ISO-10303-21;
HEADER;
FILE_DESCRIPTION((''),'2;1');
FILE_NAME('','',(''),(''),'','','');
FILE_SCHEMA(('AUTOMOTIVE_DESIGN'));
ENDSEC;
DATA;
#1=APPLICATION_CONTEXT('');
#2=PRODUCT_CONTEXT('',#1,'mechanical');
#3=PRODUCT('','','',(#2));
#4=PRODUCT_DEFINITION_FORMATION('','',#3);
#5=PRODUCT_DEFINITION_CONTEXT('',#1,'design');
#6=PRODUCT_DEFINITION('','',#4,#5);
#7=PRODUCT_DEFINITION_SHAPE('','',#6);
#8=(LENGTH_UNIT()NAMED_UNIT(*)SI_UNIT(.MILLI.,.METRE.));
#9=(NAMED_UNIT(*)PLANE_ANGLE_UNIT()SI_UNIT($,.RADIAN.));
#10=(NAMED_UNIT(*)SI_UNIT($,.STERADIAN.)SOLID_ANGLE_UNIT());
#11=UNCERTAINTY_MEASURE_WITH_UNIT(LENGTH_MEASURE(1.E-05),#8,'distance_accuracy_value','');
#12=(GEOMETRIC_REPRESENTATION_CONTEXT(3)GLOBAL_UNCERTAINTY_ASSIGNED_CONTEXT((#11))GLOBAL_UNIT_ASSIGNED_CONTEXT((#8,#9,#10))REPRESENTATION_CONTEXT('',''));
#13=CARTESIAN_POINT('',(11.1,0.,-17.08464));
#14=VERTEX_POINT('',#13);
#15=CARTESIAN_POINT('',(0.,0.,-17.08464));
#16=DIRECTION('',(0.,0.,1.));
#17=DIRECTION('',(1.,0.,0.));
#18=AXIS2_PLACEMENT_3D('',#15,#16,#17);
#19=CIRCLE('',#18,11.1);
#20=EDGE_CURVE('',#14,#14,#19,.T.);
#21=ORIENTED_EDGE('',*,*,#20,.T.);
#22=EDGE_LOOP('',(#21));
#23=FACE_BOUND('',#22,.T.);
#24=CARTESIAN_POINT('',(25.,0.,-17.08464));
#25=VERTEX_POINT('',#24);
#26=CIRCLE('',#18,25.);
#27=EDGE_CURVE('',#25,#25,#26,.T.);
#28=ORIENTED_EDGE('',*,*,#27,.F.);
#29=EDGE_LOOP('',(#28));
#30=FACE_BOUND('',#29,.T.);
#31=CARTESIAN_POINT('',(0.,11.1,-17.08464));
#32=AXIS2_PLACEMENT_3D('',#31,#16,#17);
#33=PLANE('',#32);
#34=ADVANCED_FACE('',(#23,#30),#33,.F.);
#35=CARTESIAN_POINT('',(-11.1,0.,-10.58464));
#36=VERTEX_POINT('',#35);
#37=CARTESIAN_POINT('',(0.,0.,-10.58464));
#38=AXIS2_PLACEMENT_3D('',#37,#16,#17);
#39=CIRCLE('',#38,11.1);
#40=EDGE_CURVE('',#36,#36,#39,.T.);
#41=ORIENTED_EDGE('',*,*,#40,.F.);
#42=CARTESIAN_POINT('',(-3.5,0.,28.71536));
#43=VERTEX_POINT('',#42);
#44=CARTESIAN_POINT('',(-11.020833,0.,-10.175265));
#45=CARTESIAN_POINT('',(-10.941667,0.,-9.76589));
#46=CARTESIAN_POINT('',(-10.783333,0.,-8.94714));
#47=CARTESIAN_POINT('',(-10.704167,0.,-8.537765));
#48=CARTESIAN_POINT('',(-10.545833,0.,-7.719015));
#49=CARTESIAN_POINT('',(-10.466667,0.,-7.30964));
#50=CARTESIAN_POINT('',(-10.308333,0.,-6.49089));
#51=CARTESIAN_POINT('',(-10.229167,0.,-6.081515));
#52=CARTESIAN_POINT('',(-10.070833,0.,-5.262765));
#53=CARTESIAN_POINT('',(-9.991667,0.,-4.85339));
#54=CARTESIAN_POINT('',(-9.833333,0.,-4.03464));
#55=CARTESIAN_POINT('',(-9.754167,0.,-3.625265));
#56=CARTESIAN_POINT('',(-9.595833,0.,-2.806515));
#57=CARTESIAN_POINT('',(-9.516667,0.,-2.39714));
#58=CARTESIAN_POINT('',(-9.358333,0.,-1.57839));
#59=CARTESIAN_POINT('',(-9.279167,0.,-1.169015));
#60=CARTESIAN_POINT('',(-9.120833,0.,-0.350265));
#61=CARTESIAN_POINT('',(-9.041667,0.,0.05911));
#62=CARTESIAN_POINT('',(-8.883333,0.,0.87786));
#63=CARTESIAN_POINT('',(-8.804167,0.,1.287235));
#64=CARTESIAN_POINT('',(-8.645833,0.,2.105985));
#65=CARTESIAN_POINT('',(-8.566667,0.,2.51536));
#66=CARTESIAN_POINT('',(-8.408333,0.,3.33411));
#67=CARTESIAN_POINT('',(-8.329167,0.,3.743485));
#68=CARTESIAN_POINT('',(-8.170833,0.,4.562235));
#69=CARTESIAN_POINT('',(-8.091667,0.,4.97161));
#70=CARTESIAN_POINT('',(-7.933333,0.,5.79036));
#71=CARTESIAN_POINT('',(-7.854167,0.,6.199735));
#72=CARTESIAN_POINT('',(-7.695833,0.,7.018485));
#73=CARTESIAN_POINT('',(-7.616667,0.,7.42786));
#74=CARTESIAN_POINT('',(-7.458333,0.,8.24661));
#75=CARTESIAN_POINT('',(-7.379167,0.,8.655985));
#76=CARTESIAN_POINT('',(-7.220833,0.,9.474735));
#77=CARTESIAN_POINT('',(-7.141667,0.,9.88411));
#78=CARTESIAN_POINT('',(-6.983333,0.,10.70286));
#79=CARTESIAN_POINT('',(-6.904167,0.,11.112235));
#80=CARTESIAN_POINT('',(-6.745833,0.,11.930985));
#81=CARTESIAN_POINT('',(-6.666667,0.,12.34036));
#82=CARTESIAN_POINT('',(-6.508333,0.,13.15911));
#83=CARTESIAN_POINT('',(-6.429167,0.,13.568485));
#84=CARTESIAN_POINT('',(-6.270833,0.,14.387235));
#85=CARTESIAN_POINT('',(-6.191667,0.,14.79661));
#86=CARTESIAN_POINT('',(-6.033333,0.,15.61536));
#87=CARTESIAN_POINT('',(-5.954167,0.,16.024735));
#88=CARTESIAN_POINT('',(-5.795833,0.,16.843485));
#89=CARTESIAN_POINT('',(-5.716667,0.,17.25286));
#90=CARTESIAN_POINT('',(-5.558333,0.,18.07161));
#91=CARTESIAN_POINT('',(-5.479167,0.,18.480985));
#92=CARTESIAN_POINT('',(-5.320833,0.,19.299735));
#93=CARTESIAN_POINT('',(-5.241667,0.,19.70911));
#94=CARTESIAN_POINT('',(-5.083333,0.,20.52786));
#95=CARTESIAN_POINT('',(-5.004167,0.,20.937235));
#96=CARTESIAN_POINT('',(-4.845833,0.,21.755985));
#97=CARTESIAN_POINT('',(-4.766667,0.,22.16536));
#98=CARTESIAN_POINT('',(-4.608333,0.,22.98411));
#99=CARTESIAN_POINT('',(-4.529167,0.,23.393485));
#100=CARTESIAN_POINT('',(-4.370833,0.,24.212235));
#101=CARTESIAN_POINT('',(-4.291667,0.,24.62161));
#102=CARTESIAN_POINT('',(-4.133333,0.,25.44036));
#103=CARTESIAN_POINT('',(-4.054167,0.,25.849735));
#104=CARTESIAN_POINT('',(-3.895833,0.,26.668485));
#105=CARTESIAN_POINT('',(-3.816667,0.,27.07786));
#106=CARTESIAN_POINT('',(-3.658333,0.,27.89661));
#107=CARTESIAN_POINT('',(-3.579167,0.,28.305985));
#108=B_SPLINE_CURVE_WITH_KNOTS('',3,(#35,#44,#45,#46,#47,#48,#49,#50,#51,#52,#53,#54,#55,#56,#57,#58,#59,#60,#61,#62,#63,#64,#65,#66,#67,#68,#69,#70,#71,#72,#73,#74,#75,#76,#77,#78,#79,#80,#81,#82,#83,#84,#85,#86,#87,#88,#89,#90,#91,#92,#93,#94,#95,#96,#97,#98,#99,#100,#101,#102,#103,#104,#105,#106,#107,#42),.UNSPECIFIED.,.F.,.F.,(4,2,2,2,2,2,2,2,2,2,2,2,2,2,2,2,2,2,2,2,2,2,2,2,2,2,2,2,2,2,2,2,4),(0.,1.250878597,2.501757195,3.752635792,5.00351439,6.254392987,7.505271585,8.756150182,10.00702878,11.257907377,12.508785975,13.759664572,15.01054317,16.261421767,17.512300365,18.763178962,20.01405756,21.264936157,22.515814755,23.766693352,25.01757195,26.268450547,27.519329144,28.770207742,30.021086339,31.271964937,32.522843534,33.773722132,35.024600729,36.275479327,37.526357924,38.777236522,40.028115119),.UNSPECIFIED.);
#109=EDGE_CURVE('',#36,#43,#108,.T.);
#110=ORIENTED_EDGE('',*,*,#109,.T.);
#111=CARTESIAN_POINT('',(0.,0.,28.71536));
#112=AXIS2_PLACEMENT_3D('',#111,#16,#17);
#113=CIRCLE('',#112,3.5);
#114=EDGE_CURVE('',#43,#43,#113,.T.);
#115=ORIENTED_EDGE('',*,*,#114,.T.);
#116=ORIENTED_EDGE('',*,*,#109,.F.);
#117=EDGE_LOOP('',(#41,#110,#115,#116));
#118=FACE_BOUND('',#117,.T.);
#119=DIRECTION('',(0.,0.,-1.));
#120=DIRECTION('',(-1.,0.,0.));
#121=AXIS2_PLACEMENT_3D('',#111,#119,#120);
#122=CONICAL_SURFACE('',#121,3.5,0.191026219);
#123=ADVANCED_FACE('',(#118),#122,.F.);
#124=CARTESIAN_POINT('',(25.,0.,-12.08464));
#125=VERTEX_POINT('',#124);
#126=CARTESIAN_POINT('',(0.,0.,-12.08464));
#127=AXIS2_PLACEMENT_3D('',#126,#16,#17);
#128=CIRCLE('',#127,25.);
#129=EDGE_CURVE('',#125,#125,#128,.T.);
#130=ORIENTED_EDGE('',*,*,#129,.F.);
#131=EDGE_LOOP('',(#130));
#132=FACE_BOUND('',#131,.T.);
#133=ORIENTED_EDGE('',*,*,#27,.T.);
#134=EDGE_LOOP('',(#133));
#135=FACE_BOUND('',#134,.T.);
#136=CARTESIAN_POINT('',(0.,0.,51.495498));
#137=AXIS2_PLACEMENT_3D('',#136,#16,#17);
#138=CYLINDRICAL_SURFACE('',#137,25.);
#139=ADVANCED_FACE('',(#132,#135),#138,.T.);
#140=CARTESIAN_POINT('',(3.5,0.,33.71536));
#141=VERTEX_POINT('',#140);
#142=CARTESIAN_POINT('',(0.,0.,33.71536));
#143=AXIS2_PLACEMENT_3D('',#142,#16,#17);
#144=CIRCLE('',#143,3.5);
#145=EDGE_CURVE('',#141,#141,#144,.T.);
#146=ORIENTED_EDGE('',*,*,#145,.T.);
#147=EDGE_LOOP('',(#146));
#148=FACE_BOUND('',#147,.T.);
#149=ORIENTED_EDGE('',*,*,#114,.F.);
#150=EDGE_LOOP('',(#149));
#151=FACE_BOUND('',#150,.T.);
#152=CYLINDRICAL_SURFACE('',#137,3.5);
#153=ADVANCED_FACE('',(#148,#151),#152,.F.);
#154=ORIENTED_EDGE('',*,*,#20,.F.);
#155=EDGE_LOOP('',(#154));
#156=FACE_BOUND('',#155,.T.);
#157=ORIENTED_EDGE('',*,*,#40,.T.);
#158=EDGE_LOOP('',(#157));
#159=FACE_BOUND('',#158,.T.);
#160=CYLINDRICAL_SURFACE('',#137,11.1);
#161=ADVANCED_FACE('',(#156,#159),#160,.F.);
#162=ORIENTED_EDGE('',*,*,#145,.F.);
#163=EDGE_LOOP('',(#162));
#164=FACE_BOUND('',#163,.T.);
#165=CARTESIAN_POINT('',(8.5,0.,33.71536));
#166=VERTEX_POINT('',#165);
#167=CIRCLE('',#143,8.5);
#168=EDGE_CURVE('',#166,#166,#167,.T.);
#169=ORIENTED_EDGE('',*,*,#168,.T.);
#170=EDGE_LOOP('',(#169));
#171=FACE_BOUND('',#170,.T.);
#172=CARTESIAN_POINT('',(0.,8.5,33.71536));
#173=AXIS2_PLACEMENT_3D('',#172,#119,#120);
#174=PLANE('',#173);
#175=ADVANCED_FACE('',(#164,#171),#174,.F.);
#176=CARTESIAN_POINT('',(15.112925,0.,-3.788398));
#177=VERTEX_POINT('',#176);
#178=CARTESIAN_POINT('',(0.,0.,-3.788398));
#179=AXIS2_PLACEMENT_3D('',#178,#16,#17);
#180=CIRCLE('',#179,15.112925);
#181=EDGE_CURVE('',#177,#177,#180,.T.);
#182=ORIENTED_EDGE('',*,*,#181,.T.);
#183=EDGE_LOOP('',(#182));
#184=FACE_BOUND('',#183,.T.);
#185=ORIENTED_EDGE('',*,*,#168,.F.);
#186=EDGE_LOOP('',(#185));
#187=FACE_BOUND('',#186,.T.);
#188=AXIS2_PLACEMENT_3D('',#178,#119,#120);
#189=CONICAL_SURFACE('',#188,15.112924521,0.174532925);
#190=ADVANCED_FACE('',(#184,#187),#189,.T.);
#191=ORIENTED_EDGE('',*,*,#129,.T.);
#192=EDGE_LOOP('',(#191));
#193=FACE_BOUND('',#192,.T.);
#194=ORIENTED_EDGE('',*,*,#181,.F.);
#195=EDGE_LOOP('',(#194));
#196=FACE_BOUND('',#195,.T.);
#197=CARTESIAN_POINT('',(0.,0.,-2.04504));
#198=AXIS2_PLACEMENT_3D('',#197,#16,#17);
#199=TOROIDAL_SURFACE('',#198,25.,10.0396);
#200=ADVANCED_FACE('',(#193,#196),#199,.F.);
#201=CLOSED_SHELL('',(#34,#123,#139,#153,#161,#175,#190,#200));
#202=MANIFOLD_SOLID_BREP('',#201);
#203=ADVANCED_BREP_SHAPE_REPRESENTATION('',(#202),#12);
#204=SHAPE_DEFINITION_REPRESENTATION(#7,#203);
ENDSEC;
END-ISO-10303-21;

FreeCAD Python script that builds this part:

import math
import FreeCAD as App
import Part
import Sketcher
Q = App.Units.Quantity

doc = App.newDocument("Part")
body = doc.addObject("PartDesign::Body", "Body")

sketch1 = doc.addObject("Sketcher::SketchObject", "Sketch")
body.addObject(sketch1)
sketch1.AttachmentSupport = (doc.YZ_Plane, [""])
sketch1.MapMode = "FlatFace"
sketch1.addGeometry(Part.LineSegment(App.Vector(4, 34, 0), App.Vector(4, 29, 0)), False)
sketch1.addGeometry(Part.LineSegment(App.Vector(4, 29, 0), App.Vector(11, -11, 0)), False)
sketch1.addGeometry(Part.LineSegment(App.Vector(11, -11, 0), App.Vector(11, -17, 0)), False)
sketch1.addGeometry(Part.LineSegment(App.Vector(11, -17, 0), App.Vector(25, -17, 0)), False)
sketch1.addGeometry(Part.LineSegment(App.Vector(25, -17, 0), App.Vector(25, -12, 0)), False)
sketch1.addGeometry(Part.ArcOfCircle(Part.Circle(App.Vector(25, -2, 0), App.Vector(0, 0, 1), 10), math.radians(-170), math.radians(-90)), False)
sketch1.addGeometry(Part.LineSegment(App.Vector(15, -4, 0), App.Vector(8, 34, 0)), False)
sketch1.addGeometry(Part.LineSegment(App.Vector(8, 34, 0), App.Vector(4, 34, 0)), False)
sketch1.addConstraint(Sketcher.Constraint("Coincident", 0, 2, 1, 1))
sketch1.addConstraint(Sketcher.Constraint("Coincident", 1, 2, 2, 1))
sketch1.addConstraint(Sketcher.Constraint("Coincident", 2, 2, 3, 1))
sketch1.addConstraint(Sketcher.Constraint("Coincident", 3, 2, 4, 1))
sketch1.addConstraint(Sketcher.Constraint("Coincident", 4, 2, 5, 2))
sketch1.addConstraint(Sketcher.Constraint("Tangent", 5, 1, 6, 1))
sketch1.addConstraint(Sketcher.Constraint("Coincident", 6, 2, 7, 1))
sketch1.addConstraint(Sketcher.Constraint("Coincident", 7, 2, 0, 1))
sketch1.addConstraint(Sketcher.Constraint("Vertical", 0))
sketch1.addConstraint(Sketcher.Constraint("Vertical", 2))
sketch1.addConstraint(Sketcher.Constraint("Horizontal", 3))
sketch1.addConstraint(Sketcher.Constraint("Vertical", 4))
sketch1.addConstraint(Sketcher.Constraint("Horizontal", 7))
sketch1.addConstraint(Sketcher.Constraint("Vertical", 5, 3, 3, 2))
sketch1.addConstraint(Sketcher.Constraint("Equal", 7, 0))
sketch1.addConstraint(Sketcher.Constraint("Equal", 0, 4))
sketch1.addConstraint(Sketcher.Constraint("DistanceX", 7, 2, 7, 1, Q("5 mm")))
sketch1.addConstraint(Sketcher.Constraint("Angle", 6, Q("100 deg")))
sketch1.addConstraint(Sketcher.Constraint("DistanceX", 3, 1, 3, 2, Q("13.9 mm")))
sketch1.addConstraint(Sketcher.Constraint("DistanceY", 2, 2, 2, 1, Q("6.5 mm")))
sketch1.addConstraint(Sketcher.Constraint("DistanceX", -1, 1, 5, 3, Q("25 mm")))
sketch1.addConstraint(Sketcher.Constraint("DistanceX", -1, 1, 0, 2, Q("3.5 mm")))
sketch1.addConstraint(Sketcher.Constraint("Radius", 5, Q("10.0396 mm")))
sketch1.addConstraint(Sketcher.Constraint("DistanceY", 5, 1, -1, 1, Q("3.788398 mm")))
revolution = doc.addObject("PartDesign::Revolution", "Revolution")
body.addObject(revolution)
revolution.Profile = sketch1
revolution.ReferenceAxis = (sketch1, ["V_Axis"])
revolution.Angle = 360

doc.recompute()
